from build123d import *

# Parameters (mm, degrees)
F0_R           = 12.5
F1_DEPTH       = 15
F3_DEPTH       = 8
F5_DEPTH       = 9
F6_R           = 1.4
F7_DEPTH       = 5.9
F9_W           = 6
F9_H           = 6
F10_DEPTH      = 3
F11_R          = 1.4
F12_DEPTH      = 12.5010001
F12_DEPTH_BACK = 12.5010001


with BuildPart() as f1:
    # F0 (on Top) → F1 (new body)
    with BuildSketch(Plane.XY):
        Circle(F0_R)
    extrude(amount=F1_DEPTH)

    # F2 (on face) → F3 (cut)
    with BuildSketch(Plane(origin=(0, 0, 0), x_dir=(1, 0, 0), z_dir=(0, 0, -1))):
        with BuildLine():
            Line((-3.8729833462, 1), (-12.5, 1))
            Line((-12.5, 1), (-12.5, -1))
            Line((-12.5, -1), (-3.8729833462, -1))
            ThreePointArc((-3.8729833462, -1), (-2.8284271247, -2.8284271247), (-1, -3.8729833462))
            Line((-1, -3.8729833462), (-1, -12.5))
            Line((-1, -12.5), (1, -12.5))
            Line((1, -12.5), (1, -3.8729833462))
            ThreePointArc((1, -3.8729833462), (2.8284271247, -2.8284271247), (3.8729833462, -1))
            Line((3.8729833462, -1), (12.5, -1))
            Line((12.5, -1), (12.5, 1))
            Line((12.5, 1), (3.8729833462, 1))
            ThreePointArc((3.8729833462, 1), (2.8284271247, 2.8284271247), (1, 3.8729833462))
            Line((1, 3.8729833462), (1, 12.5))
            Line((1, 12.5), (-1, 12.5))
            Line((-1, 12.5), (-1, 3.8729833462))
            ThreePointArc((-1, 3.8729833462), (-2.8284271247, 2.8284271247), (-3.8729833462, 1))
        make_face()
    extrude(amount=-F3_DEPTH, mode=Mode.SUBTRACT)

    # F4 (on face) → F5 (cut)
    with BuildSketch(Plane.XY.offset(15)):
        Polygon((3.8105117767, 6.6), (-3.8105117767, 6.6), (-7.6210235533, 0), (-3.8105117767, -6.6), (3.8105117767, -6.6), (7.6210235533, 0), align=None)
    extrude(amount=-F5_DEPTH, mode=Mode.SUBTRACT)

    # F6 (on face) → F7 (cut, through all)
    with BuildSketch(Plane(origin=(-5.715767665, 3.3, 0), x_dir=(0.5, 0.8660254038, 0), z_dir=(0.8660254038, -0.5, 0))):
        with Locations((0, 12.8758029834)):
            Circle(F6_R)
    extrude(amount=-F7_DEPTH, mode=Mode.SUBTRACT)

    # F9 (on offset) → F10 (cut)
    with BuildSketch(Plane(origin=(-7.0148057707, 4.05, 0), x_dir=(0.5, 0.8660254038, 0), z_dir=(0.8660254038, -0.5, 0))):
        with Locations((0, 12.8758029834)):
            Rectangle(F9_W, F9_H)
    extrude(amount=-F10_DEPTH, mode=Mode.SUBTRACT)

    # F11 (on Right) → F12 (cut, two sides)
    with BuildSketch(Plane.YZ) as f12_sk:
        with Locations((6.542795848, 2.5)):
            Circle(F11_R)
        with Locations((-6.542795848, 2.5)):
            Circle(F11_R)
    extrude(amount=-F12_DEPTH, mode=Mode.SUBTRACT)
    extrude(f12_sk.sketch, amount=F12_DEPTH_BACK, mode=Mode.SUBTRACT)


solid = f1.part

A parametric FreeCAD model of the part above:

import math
import FreeCAD as App
import Part
import Sketcher
Q = App.Units.Quantity

doc = App.newDocument("Part")
body = doc.addObject("PartDesign::Body", "Body")

# Sketch on XY plane
sketch1 = body.newObject("Sketcher::SketchObject", "Sketch")
sketch1.AttachmentSupport = (doc.getObject("XY_Plane"), [""])
sketch1.MapMode = "FlatFace"
sketch1.addGeometry(Part.Circle(App.Vector(0, 0, 0), App.Vector(0, 0, 1), 12.5), False)
sketch1.addConstraint(Sketcher.Constraint("Coincident", 0, 3, -1, 1))
sketch1.addConstraint(Sketcher.Constraint("Diameter", 0, Q("25 mm")))
pad1 = body.newObject("PartDesign::Pad", "Pad")
pad1.Profile = sketch1
pad1.Length = 15

# Sketch on XY plane
sketch2 = body.newObject("Sketcher::SketchObject", "Sketch001")
sketch2.AttachmentSupport = (doc.getObject("XY_Plane"), [""])
sketch2.MapMode = "FlatFace"
sketch2.addGeometry(Part.LineSegment(App.Vector(-3.872983, -1, 0), App.Vector(-12.5, -1, 0)), False)
sketch2.addGeometry(Part.LineSegment(App.Vector(-12.5, -1, 0), App.Vector(-12.5, 1, 0)), False)
sketch2.addGeometry(Part.LineSegment(App.Vector(-12.5, 1, 0), App.Vector(-3.872983, 1, 0)), False)
sketch2.addGeometry(Part.ArcOfCircle(Part.Circle(App.Vector(0, 0, 0), App.Vector(0, 0, 1), 4), math.radians(104.477512), math.radians(165.522488)), False)
sketch2.addGeometry(Part.LineSegment(App.Vector(-1, 3.872983, 0), App.Vector(-1, 12.5, 0)), False)
sketch2.addGeometry(Part.LineSegment(App.Vector(-1, 12.5, 0), App.Vector(1, 12.5, 0)), False)
sketch2.addGeometry(Part.LineSegment(App.Vector(1, 12.5, 0), App.Vector(1, 3.872983, 0)), False)
sketch2.addGeometry(Part.ArcOfCircle(Part.Circle(App.Vector(0, 0, 0), App.Vector(0, 0, 1), 4), math.radians(14.477512), math.radians(75.522488)), False)
sketch2.addGeometry(Part.LineSegment(App.Vector(3.872983, 1, 0), App.Vector(12.5, 1, 0)), False)
sketch2.addGeometry(Part.LineSegment(App.Vector(12.5, 1, 0), App.Vector(12.5, -1, 0)), False)
sketch2.addGeometry(Part.LineSegment(App.Vector(12.5, -1, 0), App.Vector(3.872983, -1, 0)), False)
sketch2.addGeometry(Part.ArcOfCircle(Part.Circle(App.Vector(0, 0, 0), App.Vector(0, 0, 1), 4), math.radians(-75.522488), math.radians(-14.477512)), False)
sketch2.addGeometry(Part.LineSegment(App.Vector(1, -3.872983, 0), App.Vector(1, -12.5, 0)), False)
sketch2.addGeometry(Part.LineSegment(App.Vector(1, -12.5, 0), App.Vector(-1, -12.5, 0)), False)
sketch2.addGeometry(Part.LineSegment(App.Vector(-1, -12.5, 0), App.Vector(-1, -3.872983, 0)), False)
sketch2.addGeometry(Part.ArcOfCircle(Part.Circle(App.Vector(0, 0, 0), App.Vector(0, 0, 1), 4), math.radians(-165.522488), math.radians(-104.477512)), False)
sketch2.addConstraint(Sketcher.Constraint("Coincident", 0, 2, 1, 1))
sketch2.addConstraint(Sketcher.Constraint("Coincident", 1, 2, 2, 1))
sketch2.addConstraint(Sketcher.Constraint("Coincident", 2, 2, 3, 2))
sketch2.addConstraint(Sketcher.Constraint("Coincident", 3, 1, 4, 1))
sketch2.addConstraint(Sketcher.Constraint("Coincident", 4, 2, 5, 1))
sketch2.addConstraint(Sketcher.Constraint("Coincident", 5, 2, 6, 1))
sketch2.addConstraint(Sketcher.Constraint("Coincident", 6, 2, 7, 2))
sketch2.addConstraint(Sketcher.Constraint("Coincident", 7, 1, 8, 1))
sketch2.addConstraint(Sketcher.Constraint("Coincident", 8, 2, 9, 1))
sketch2.addConstraint(Sketcher.Constraint("Coincident", 9, 2, 10, 1))
sketch2.addConstraint(Sketcher.Constraint("Coincident", 10, 2, 11, 2))
sketch2.addConstraint(Sketcher.Constraint("Coincident", 11, 1, 12, 1))
sketch2.addConstraint(Sketcher.Constraint("Coincident", 12, 2, 13, 1))
sketch2.addConstraint(Sketcher.Constraint("Coincident", 13, 2, 14, 1))
sketch2.addConstraint(Sketcher.Constraint("Coincident", 14, 2, 15, 2))
sketch2.addConstraint(Sketcher.Constraint("Coincident", 15, 1, 0, 1))
sketch2.addConstraint(Sketcher.Constraint("Horizontal", 0))
sketch2.addConstraint(Sketcher.Constraint("Vertical", 1))
sketch2.addConstraint(Sketcher.Constraint("Horizontal", 2))
sketch2.addConstraint(Sketcher.Constraint("Vertical", 4))
sketch2.addConstraint(Sketcher.Constraint("Horizontal", 5))
sketch2.addConstraint(Sketcher.Constraint("Vertical", 6))
sketch2.addConstraint(Sketcher.Constraint("Horizontal", 8))
sketch2.addConstraint(Sketcher.Constraint("Vertical", 9))
sketch2.addConstraint(Sketcher.Constraint("Horizontal", 10))
sketch2.addConstraint(Sketcher.Constraint("Vertical", 12))
sketch2.addConstraint(Sketcher.Constraint("Horizontal", 13))
sketch2.addConstraint(Sketcher.Constraint("Vertical", 14))
sketch2.addConstraint(Sketcher.Constraint("Coincident", 3, 3, -1, 1))
sketch2.addConstraint(Sketcher.Constraint("Coincident", 7, 3, -1, 1))
sketch2.addConstraint(Sketcher.Constraint("Coincident", 11, 3, -1, 1))
sketch2.addConstraint(Sketcher.Constraint("Coincident", 15, 3, -1, 1))
sketch2.addConstraint(Sketcher.Constraint("Equal", 3, 7))
sketch2.addConstraint(Sketcher.Constraint("Equal", 7, 11))
sketch2.addConstraint(Sketcher.Constraint("Equal", 11, 15))
sketch2.addConstraint(Sketcher.Constraint("Symmetric", 0, 2, 8, 2, -1, 1))
sketch2.addConstraint(Sketcher.Constraint("Symmetric", 4, 2, 12, 2, -1, 1))
sketch2.addConstraint(Sketcher.Constraint("Horizontal", 3, 1, 6, 2))
sketch2.addConstraint(Sketcher.Constraint("Horizontal", 2, 2, 7, 1))
sketch2.addConstraint(Sketcher.Constraint("Horizontal", 0, 2, 9, 2))
sketch2.addConstraint(Sketcher.Constraint("Horizontal", 11, 1, 14, 2))
sketch2.addConstraint(Sketcher.Constraint("Equal", 13, 1))
sketch2.addConstraint(Sketcher.Constraint("Equal", 10, 4))
sketch2.addConstraint(Sketcher.Constraint("Radius", 3, Q("4 mm")))
sketch2.addConstraint(Sketcher.Constraint("DistanceX", 5, 1, 5, 2, Q("2 mm")))
sketch2.addConstraint(Sketcher.Constraint("DistanceX", 0, 2, -1, 1, Q("12.5 mm")))
pocket1 = body.newObject("PartDesign::Pocket", "Pocket")
pocket1.Profile = sketch2
pocket1.Length = 8
pocket1.Reversed = True

# Sketch on XY plane
sketch3 = body.newObject("Sketcher::SketchObject", "Sketch002")
sketch3.AttachmentSupport = (doc.getObject("XY_Plane"), [""])
sketch3.MapMode = "FlatFace"
sketch3.AttachmentOffset = App.Placement(App.Vector(0, 0, 15), App.Rotation())
sketch3.addGeometry(Part.LineSegment(App.Vector(3.810512, 6.6, 0), App.Vector(-3.810512, 6.6, 0)), False)
sketch3.addGeometry(Part.LineSegment(App.Vector(-3.810512, 6.6, 0), App.Vector(-7.621024, 0, 0)), False)
sketch3.addGeometry(Part.LineSegment(App.Vector(-7.621024, 0, 0), App.Vector(-3.810512, -6.6, 0)), False)
sketch3.addGeometry(Part.LineSegment(App.Vector(-3.810512, -6.6, 0), App.Vector(3.810512, -6.6, 0)), False)
sketch3.addGeometry(Part.LineSegment(App.Vector(3.810512, -6.6, 0), App.Vector(7.621024, 0, 0)), False)
sketch3.addGeometry(Part.LineSegment(App.Vector(7.621024, 0, 0), App.Vector(3.810512, 6.6, 0)), False)
sketch3.addConstraint(Sketcher.Constraint("Coincident", 0, 2, 1, 1))
sketch3.addConstraint(Sketcher.Constraint("Coincident", 1, 2, 2, 1))
sketch3.addConstraint(Sketcher.Constraint("Coincident", 2, 2, 3, 1))
sketch3.addConstraint(Sketcher.Constraint("Coincident", 3, 2, 4, 1))
sketch3.addConstraint(Sketcher.Constraint("Coincident", 4, 2, 5, 1))
sketch3.addConstraint(Sketcher.Constraint("Coincident", 5, 2, 0, 1))
sketch3.addConstraint(Sketcher.Constraint("Horizontal", 0))
sketch3.addConstraint(Sketcher.Constraint("Horizontal", 3))
sketch3.addConstraint(Sketcher.Constraint("Symmetric", 0, 2, 3, 2, -1, 1))
sketch3.addConstraint(Sketcher.Constraint("Symmetric", 1, 2, 4, 2, -1, 1))
sketch3.addConstraint(Sketcher.Constraint("PointOnObject", 1, 2, -1))
sketch3.addConstraint(Sketcher.Constraint("Parallel", 2, 5))
sketch3.addConstraint(Sketcher.Constraint("Vertical", 0, 2, 2, 2))
sketch3.addConstraint(Sketcher.Constraint("Angle", 1, Q("-120 deg")))
sketch3.addConstraint(Sketcher.Constraint("DistanceY", -1, 1, 0, 2, Q("6.6 mm")))
sketch3.addConstraint(Sketcher.Constraint("DistanceX", 0, 2, 0, 1, Q("7.621024 mm")))
pocket2 = body.newObject("PartDesign::Pocket", "Pocket001")
pocket2.Profile = sketch3
pocket2.Length = 9

# Sketch on an angled plane
sketch4 = body.newObject("Sketcher::SketchObject", "Sketch003")
sketch4.Placement = App.Placement(App.Vector(-5.715768, 3.3, 0), App.Rotation(App.Vector(0.5, 0.866025404, 0), App.Vector(0, 0, 1), App.Vector(0.866025404, -0.5, 0), "ZXY"))
sketch4.addGeometry(Part.Circle(App.Vector(0, 12.875803, 0), App.Vector(0, 0, 1), 1.4), False)
sketch4.addConstraint(Sketcher.Constraint("PointOnObject", 0, 3, -2))
sketch4.addConstraint(Sketcher.Constraint("Diameter", 0, Q("2.8 mm")))
sketch4.addConstraint(Sketcher.Constraint("DistanceY", -1, 1, 0, 3, Q("12.875803 mm")))
pocket3 = body.newObject("PartDesign::Pocket", "Pocket002")
pocket3.Profile = sketch4
pocket3.Type = "ThroughAll"

# Sketch on an angled plane
sketch5 = body.newObject("Sketcher::SketchObject", "Sketch004")
sketch5.Placement = App.Placement(App.Vector(-7.014806, 4.05, 0), App.Rotation(App.Vector(0.5, 0.866025404, 0), App.Vector(0, 0, 1), App.Vector(0.866025404, -0.5, 0), "ZXY"))
sketch5.addGeometry(Part.LineSegment(App.Vector(-3, 15.875803, 0), App.Vector(-3, 9.875803, 0)), False)
sketch5.addGeometry(Part.LineSegment(App.Vector(-3, 9.875803, 0), App.Vector(3, 9.875803, 0)), False)
sketch5.addGeometry(Part.LineSegment(App.Vector(3, 9.875803, 0), App.Vector(3, 15.875803, 0)), False)
sketch5.addGeometry(Part.LineSegment(App.Vector(3, 15.875803, 0), App.Vector(-3, 15.875803, 0)), False)
sketch5.addConstraint(Sketcher.Constraint("Coincident", 0, 2, 1, 1))
sketch5.addConstraint(Sketcher.Constraint("Coincident", 1, 2, 2, 1))
sketch5.addConstraint(Sketcher.Constraint("Coincident", 2, 2, 3, 1))
sketch5.addConstraint(Sketcher.Constraint("Coincident", 3, 2, 0, 1))
sketch5.addConstraint(Sketcher.Constraint("Vertical", 0))
sketch5.addConstraint(Sketcher.Constraint("Horizontal", 1))
sketch5.addConstraint(Sketcher.Constraint("Vertical", 2))
sketch5.addConstraint(Sketcher.Constraint("Horizontal", 3))
sketch5.addConstraint(Sketcher.Constraint("Equal", 3, 0))
sketch5.addConstraint(Sketcher.Constraint("DistanceX", 1, 1, 1, 2, Q("6 mm")))
sketch5.addConstraint(Sketcher.Constraint("DistanceX", 0, 2, -1, 1, Q("3 mm")))
sketch5.addConstraint(Sketcher.Constraint("DistanceY", -1, 1, 0, 2, Q("9.875803 mm")))
pocket4 = body.newObject("PartDesign::Pocket", "Pocket003")
pocket4.Profile = sketch5
pocket4.Length = 3

# Sketch on YZ plane
sketch6 = body.newObject("Sketcher::SketchObject", "Sketch005")
sketch6.AttachmentSupport = (doc.getObject("YZ_Plane"), [""])
sketch6.MapMode = "FlatFace"
sketch6.addGeometry(Part.Circle(App.Vector(6.542796, 2.5, 0), App.Vector(0, 0, 1), 1.4), False)
sketch6.addGeometry(Part.Circle(App.Vector(-6.542796, 2.5, 0), App.Vector(0, 0, 1), 1.4), False)
sketch6.addConstraint(Sketcher.Constraint("Equal", 0, 1))
sketch6.addConstraint(Sketcher.Constraint("Symmetric", 0, 3, 1, 3, -2))
sketch6.addConstraint(Sketcher.Constraint("Diameter", 0, Q("2.8 mm")))
sketch6.addConstraint(Sketcher.Constraint("DistanceY", -1, 1, 0, 3, Q("2.5 mm")))
sketch6.addConstraint(Sketcher.Constraint("DistanceX", 1, 3, 0, 3, Q("13.085592 mm")))
pocket5 = body.newObject("PartDesign::Pocket", "Pocket004")
pocket5.Profile = sketch6
pocket5.Type = "ThroughAll"
pocket5.Midplane = True

doc.recompute()
